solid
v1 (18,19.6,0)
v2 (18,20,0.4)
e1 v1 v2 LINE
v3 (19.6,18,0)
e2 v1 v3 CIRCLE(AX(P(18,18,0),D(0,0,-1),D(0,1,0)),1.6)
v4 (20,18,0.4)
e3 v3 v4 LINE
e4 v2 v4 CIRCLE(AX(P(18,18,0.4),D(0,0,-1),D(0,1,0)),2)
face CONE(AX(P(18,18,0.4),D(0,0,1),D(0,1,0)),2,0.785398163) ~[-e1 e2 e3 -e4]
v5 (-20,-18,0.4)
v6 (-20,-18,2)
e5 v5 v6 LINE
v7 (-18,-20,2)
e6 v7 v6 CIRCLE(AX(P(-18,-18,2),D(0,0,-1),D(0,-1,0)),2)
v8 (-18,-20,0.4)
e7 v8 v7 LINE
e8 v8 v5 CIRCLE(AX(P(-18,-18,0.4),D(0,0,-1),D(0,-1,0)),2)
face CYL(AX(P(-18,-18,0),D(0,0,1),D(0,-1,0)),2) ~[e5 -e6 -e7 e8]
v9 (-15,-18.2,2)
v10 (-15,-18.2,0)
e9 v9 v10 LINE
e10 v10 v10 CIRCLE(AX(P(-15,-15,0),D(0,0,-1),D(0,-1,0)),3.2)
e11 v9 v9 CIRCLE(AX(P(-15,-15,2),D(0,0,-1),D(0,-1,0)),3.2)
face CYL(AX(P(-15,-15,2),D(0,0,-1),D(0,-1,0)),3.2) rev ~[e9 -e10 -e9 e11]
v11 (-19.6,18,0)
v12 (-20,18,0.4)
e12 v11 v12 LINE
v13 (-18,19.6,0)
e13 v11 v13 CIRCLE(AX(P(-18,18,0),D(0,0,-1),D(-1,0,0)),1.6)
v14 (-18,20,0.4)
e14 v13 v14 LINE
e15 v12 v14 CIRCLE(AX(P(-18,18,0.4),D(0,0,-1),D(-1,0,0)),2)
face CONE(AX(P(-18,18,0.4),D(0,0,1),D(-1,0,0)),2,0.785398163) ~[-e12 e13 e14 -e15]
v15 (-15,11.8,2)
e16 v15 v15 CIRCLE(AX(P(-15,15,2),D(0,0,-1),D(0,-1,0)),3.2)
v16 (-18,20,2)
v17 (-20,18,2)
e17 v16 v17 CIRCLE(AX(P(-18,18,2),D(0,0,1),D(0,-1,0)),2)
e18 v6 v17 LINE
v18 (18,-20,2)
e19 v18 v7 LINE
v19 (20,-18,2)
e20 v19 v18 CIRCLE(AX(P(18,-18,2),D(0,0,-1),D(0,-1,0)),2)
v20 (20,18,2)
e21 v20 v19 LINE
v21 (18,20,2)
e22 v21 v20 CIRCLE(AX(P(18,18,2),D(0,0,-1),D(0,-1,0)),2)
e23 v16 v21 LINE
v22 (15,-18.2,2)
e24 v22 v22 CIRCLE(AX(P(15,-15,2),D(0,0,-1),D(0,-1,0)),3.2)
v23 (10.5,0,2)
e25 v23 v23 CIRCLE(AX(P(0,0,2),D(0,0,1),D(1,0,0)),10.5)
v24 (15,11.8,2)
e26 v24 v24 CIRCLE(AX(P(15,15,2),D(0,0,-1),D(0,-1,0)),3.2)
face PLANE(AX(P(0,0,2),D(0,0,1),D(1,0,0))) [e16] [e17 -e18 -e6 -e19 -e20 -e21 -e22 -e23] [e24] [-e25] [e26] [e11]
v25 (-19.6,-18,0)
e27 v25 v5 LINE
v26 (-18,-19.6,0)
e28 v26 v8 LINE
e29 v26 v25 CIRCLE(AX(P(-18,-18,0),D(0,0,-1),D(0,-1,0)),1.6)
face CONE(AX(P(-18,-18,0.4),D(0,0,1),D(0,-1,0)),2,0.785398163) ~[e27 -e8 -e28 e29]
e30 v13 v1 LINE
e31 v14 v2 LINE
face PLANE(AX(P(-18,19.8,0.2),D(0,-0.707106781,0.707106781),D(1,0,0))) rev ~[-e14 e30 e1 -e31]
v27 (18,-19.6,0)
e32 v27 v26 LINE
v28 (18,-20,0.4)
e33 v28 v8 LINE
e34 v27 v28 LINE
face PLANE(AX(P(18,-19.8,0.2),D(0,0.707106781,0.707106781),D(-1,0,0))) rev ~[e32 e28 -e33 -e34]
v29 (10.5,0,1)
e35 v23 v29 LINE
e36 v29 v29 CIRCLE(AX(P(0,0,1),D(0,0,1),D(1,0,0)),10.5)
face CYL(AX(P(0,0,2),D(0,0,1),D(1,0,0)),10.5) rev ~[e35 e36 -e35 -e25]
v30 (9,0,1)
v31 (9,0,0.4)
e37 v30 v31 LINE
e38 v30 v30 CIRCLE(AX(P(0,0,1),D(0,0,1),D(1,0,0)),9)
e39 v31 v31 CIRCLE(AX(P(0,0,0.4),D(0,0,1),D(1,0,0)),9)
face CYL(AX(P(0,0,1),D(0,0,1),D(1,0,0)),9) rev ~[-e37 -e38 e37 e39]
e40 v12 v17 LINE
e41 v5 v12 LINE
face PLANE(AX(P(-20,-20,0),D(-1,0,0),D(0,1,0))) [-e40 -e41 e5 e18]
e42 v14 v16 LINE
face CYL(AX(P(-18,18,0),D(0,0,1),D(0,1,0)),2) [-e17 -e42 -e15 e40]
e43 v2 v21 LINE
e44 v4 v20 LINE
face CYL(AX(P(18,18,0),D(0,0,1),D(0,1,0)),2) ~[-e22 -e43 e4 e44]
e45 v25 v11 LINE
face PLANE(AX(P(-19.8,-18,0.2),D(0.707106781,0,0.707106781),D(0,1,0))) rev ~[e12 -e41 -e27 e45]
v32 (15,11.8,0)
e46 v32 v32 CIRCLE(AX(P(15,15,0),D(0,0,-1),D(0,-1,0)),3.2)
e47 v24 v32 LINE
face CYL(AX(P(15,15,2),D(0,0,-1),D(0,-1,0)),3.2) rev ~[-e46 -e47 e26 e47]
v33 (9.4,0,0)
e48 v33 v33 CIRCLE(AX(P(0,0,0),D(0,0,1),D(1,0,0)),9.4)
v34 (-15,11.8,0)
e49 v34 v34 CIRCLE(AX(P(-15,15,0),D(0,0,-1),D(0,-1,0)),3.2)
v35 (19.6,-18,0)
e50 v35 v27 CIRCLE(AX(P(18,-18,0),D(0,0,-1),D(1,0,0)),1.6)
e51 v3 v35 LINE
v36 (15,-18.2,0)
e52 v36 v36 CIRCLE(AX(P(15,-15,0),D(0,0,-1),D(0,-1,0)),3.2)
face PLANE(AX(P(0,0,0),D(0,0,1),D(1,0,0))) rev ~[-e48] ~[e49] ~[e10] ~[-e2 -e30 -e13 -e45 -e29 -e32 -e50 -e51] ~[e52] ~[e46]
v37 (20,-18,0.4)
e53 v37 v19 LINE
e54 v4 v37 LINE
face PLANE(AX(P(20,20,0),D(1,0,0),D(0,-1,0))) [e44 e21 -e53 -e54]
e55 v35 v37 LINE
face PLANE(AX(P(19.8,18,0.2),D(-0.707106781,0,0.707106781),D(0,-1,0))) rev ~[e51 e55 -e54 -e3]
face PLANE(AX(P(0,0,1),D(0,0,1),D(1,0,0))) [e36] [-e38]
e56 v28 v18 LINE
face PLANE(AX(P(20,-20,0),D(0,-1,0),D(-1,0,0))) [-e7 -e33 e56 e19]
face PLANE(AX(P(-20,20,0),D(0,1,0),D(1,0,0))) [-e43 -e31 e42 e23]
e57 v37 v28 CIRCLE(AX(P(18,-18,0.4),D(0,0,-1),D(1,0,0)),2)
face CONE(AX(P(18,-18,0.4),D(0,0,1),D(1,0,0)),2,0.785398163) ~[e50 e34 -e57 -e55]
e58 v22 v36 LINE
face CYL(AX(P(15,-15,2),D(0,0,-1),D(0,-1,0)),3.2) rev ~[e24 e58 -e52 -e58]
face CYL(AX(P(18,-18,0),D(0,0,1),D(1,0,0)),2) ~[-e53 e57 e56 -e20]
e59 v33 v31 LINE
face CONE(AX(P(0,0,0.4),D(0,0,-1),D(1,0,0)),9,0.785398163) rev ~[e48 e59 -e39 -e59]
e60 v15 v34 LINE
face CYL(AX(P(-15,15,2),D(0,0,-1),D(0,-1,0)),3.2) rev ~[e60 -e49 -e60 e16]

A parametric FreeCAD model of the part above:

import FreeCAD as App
import Part
import Sketcher

V = App.Vector


def edges_at(feature, points):
    """Names of the edges that pass closest to the given points."""
    edges = feature.Shape.Edges
    near = lambda p: min(range(len(edges)), key=lambda i: edges[i].distToShape(Part.Vertex(*p))[0])
    return sorted({f"Edge{near(p) + 1}" for p in points})

doc = App.newDocument("Part")
body = doc.addObject("PartDesign::Body", "Body")

sketch1 = body.newObject("Sketcher::SketchObject", "Sketch")
sketch1.AttachmentSupport = (doc.getObject("XY_Plane"), [""])
sketch1.MapMode = "FlatFace"
sketch1.addGeometry(Part.LineSegment(V(20, 20, 0), V(-20, 20, 0)), False)
sketch1.addGeometry(Part.LineSegment(V(-20, 20, 0), V(-20, -20, 0)), False)
sketch1.addGeometry(Part.LineSegment(V(-20, -20, 0), V(20, -20, 0)), False)
sketch1.addGeometry(Part.LineSegment(V(20, -20, 0), V(20, 20, 0)), False)
sketch1.addConstraint(Sketcher.Constraint("Coincident", 0, 2, 1, 1))
sketch1.addConstraint(Sketcher.Constraint("Coincident", 1, 2, 2, 1))
sketch1.addConstraint(Sketcher.Constraint("Coincident", 2, 2, 3, 1))
sketch1.addConstraint(Sketcher.Constraint("Coincident", 3, 2, 0, 1))
sketch1.addConstraint(Sketcher.Constraint("Horizontal", 0))
sketch1.addConstraint(Sketcher.Constraint("Vertical", 1))
sketch1.addConstraint(Sketcher.Constraint("Horizontal", 2))
sketch1.addConstraint(Sketcher.Constraint("Vertical", 3))
sketch1.addConstraint(Sketcher.Constraint("Symmetric", 0, 2, 2, 2, -1, 1))
sketch1.addConstraint(Sketcher.Constraint("Equal", 2, 1))
sketch1.addConstraint(Sketcher.Constraint("DistanceX", 0, 2, 0, 1, 40.0))
pad1 = body.newObject("PartDesign::Pad", "Pad")
pad1.Profile = sketch1
pad1.Length = 2
doc.recompute()

fillet = body.newObject("PartDesign::Fillet", "Fillet")
fillet.Base = (pad1, edges_at(pad1, [
    (20, 20, 1),
    (-20, 20, 1),
    (20, -20, 1),
    (-20, -20, 1),
]))
fillet.Radius = 2

sketch2 = body.newObject("Sketcher::SketchObject", "Sketch001")
sketch2.AttachmentSupport = (doc.getObject("XY_Plane"), [""])
sketch2.MapMode = "FlatFace"
sketch2.AttachmentOffset = App.Placement(V(0, 0, 2), App.Rotation())
sketch2.addGeometry(Part.Circle(V(-15, 15, 0), V(0, 0, 1), 3.2), False)
sketch2.addGeometry(Part.Circle(V(15, 15, 0), V(0, 0, 1), 3.2), False)
sketch2.addGeometry(Part.Circle(V(15, -15, 0), V(0, 0, 1), 3.2), False)
sketch2.addGeometry(Part.Circle(V(-15, -15, 0), V(0, 0, 1), 3.2), False)
sketch2.addConstraint(Sketcher.Constraint("Equal", 0, 1))
sketch2.addConstraint(Sketcher.Constraint("Equal", 1, 2))
sketch2.addConstraint(Sketcher.Constraint("Equal", 2, 3))
sketch2.addConstraint(Sketcher.Constraint("Symmetric", 0, 3, 2, 3, -1, 1))
sketch2.addConstraint(Sketcher.Constraint("Symmetric", 1, 3, 3, 3, -1, 1))
sketch2.addConstraint(Sketcher.Constraint("Symmetric", 0, 3, 1, 3, -2))
sketch2.addConstraint(Sketcher.Constraint("Diameter", 0, 6.4))
sketch2.addConstraint(Sketcher.Constraint("DistanceX", 0, 3, -1, 1, 15.0))
sketch2.addConstraint(Sketcher.Constraint("DistanceY", -1, 1, 0, 3, 15.0))
doc.recompute()
hole = body.newObject("PartDesign::Hole", "Hole")
hole.Profile = sketch2
hole.ThreadType = "None"
hole.Diameter = 6.4
hole.DepthType = "ThroughAll"

sketch3 = body.newObject("Sketcher::SketchObject", "Sketch002")
sketch3.AttachmentSupport = (doc.getObject("XY_Plane"), [""])
sketch3.MapMode = "FlatFace"
sketch3.AttachmentOffset = App.Placement(V(0, 0, 2), App.Rotation())
sketch3.addGeometry(Part.Circle(V(0, 0, 0), V(0, 0, 1), 10), False)
sketch3.addConstraint(Sketcher.Constraint("Coincident", 0, 3, -1, 1))
sketch3.addConstraint(Sketcher.Constraint("Diameter", 0, 21.0))
pocket1 = body.newObject("PartDesign::Pocket", "Pocket")
pocket1.Profile = sketch3
pocket1.Length = 1

sketch4 = body.newObject("Sketcher::SketchObject", "Sketch003")
sketch4.AttachmentSupport = (doc.getObject("XY_Plane"), [""])
sketch4.MapMode = "FlatFace"
sketch4.AttachmentOffset = App.Placement(V(0, 0, 1), App.Rotation())
sketch4.addGeometry(Part.Circle(V(0, 0, 0), V(0, 0, 1), 9), False)
sketch4.addConstraint(Sketcher.Constraint("Coincident", 0, 3, -1, 1))
sketch4.addConstraint(Sketcher.Constraint("Diameter", 0, 18.0))
pocket2 = body.newObject("PartDesign::Pocket", "Pocket001")
pocket2.Profile = sketch4
pocket2.Type = "ThroughAll"
doc.recompute()

chamfer = body.newObject("PartDesign::Chamfer", "Chamfer")
chamfer.Base = (pocket2, edges_at(pocket2, [
    (-9, 0, 0),
    (0, -20, 0),
    (19.414, -19.414, 0),
    (20, 0, 0),
    (19.414, 19.414, 0),
    (0, 20, 0),
    (-19.414, 19.414, 0),
    (-20, 0, 0),
    (-19.414, -19.414, 0),
]))
chamfer.Size = 0.4

doc.recompute()
